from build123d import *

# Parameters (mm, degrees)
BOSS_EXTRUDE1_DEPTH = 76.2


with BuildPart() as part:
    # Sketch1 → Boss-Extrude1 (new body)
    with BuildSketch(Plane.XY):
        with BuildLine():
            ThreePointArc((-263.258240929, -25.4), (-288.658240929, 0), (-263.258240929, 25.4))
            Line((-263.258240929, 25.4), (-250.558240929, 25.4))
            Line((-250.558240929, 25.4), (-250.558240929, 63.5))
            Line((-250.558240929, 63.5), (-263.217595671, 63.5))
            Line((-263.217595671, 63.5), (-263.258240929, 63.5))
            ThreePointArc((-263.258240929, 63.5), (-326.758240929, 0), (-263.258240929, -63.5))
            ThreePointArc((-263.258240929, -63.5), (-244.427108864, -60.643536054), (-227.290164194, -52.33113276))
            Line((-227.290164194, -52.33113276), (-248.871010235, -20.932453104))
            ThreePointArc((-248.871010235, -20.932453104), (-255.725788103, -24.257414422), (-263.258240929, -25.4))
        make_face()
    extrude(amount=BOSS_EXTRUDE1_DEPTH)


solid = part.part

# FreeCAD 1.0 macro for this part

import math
import FreeCAD as App
import Part
import Sketcher
Q = App.Units.Quantity

doc = App.newDocument("Part")
params = doc.addObject("Spreadsheet::Sheet", "Params")
for row, (alias, value) in enumerate([
    ("sketch1_radius", "1 in"),
    ("sketch1_radius2", "2.5 in"),
    ("sketch1_width", "0.5 in"),
    ("pad1_length", "3 in"),
], start=1):
    params.set(f"A{row}", alias)
    params.set(f"B{row}", "=" + value)
    params.setAlias(f"B{row}", alias)

body = doc.addObject("PartDesign::Body", "Body")

sketch1 = doc.addObject("Sketcher::SketchObject", "Sketch")
body.addObject(sketch1)
sketch1.AttachmentSupport = (doc.XY_Plane, [""])
sketch1.MapMode = "FlatFace"
sketch1.addGeometry([
    Part.ArcOfCircle(Part.Circle(App.Vector(-263, 0, 0), App.Vector(0, 0, 1), 25), math.radians(90), math.radians(270)),
    Part.LineSegment(App.Vector(-263, 25, 0), App.Vector(-251, 25, 0)),
    Part.LineSegment(App.Vector(-251, 25, 0), App.Vector(-251, 64, 0)),
    Part.LineSegment(App.Vector(-251, 64, 0), App.Vector(-263, 64, 0)),
    Part.ArcOfCircle(Part.Circle(App.Vector(-263, 0, 0), App.Vector(0, 0, 1), 64), math.radians(90), math.radians(270)),
    Part.ArcOfCircle(Part.Circle(App.Vector(-263, 0, 0), App.Vector(0, 0, 1), 63), math.radians(-90), math.radians(-55)),
    Part.LineSegment(App.Vector(-227, -52, 0), App.Vector(-249, -21, 0)),
    Part.ArcOfCircle(Part.Circle(App.Vector(-263, 0, 0), App.Vector(0, 0, 1), 25), math.radians(-90), math.radians(-55)),
], False)
sketch1.addConstraint([
    Sketcher.Constraint("Tangent", 0, 1, 1, 1),
    Sketcher.Constraint("Coincident", 1, 2, 2, 1),
    Sketcher.Constraint("Coincident", 2, 2, 3, 1),
    Sketcher.Constraint("Tangent", 3, 2, 4, 1),
    Sketcher.Constraint("Tangent", 4, 2, 5, 1),
    Sketcher.Constraint("Coincident", 5, 2, 6, 1),
    Sketcher.Constraint("Coincident", 6, 2, 7, 2),
    Sketcher.Constraint("Tangent", 7, 1, 0, 2),
    Sketcher.Constraint("Horizontal", 1),
    Sketcher.Constraint("Vertical", 2),
    Sketcher.Constraint("Horizontal", 3),
    Sketcher.Constraint("Coincident", 4, 3, 0, 3),
    Sketcher.Constraint("Equal", 4, 5),
    Sketcher.Constraint("Equal", 0, 7),
    Sketcher.Constraint("Symmetric", 3, 2, 4, 2, -1),
    Sketcher.Constraint("Vertical", 4, 2, 7, 1),
    Sketcher.Constraint("Radius", 0, Q("1 in")),
    Sketcher.Constraint("Radius", 4, Q("2.5 in")),
    Sketcher.Constraint("DistanceX", 1, 1, 1, 2, Q("0.5 in")),
    Sketcher.Constraint("DistanceX", 0, 3, -1, 1, Q("263.258241 mm")),
    Sketcher.Constraint("DistanceX", 6, 2, -1, 1, Q("248.87101 mm")),
    Sketcher.Constraint("DistanceY", 5, 2, 6, 2, Q("31.39868 mm")),
])
sketch1.setExpression("Constraints[16]", "Params.sketch1_radius")
sketch1.setExpression("Constraints[17]", "Params.sketch1_radius2")
sketch1.setExpression("Constraints[18]", "Params.sketch1_width")
pad1 = doc.addObject("PartDesign::Pad", "Pad")
body.addObject(pad1)
pad1.Profile = sketch1
pad1.setExpression("Length", "Params.pad1_length")

doc.recompute()
